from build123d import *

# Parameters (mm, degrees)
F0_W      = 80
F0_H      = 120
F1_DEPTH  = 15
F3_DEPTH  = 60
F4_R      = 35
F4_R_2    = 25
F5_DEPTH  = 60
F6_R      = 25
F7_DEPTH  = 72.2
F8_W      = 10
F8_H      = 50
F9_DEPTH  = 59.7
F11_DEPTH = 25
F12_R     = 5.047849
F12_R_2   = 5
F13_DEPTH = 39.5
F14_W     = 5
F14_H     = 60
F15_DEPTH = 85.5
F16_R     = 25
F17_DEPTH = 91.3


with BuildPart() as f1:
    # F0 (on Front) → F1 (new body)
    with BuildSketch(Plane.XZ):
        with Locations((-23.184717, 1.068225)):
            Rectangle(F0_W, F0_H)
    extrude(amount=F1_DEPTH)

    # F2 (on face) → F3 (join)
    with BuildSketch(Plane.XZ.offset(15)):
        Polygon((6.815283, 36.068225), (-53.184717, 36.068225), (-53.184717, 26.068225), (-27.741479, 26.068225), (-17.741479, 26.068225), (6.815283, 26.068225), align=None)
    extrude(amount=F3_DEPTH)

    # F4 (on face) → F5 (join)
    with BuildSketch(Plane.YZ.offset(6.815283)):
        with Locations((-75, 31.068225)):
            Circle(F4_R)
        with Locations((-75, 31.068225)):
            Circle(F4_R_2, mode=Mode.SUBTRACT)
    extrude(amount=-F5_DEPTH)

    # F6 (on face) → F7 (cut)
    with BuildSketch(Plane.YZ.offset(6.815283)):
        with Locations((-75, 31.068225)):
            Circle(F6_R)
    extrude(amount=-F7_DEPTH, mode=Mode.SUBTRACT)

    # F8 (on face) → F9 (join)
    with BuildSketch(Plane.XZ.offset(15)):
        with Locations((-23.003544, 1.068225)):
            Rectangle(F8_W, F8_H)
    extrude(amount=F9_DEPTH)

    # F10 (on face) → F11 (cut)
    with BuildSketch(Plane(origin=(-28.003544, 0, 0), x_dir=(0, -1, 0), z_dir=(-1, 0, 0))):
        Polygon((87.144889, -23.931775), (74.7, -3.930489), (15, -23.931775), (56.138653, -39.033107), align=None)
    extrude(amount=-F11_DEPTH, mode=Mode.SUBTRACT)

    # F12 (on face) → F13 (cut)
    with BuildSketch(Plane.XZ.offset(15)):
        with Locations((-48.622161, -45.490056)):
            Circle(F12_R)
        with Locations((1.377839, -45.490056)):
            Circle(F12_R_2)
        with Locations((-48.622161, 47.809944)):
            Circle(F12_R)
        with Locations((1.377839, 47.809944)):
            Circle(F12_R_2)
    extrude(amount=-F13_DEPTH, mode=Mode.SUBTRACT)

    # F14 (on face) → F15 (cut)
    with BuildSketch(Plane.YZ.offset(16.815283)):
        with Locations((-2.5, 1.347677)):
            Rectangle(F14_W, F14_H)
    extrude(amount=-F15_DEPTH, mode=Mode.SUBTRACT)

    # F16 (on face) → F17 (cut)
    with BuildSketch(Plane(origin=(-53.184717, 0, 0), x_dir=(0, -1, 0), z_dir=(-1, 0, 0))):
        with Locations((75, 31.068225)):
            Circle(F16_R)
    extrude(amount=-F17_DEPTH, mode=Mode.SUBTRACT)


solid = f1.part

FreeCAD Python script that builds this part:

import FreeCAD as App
import Part
import Sketcher


def add_polygon(sketch, points):
    """Adds a closed chain of lines whose ends are joined by coincident constraints."""
    first, n = sketch.GeometryCount, len(points)
    for a, b in zip(points, points[1:] + points[:1]):
        sketch.addGeometry(Part.LineSegment(App.Vector(*a, 0), App.Vector(*b, 0)), False)
    for i in range(n):
        sketch.addConstraint(Sketcher.Constraint("Coincident", first + i, 2, first + (i + 1) % n, 1))

doc = App.newDocument("Part")
body = doc.addObject("PartDesign::Body", "Body")

# Sketch on XZ plane
sketch1 = body.newObject("Sketcher::SketchObject", "Sketch")
sketch1.AttachmentSupport = (doc.getObject("XZ_Plane"), [""])
sketch1.MapMode = "FlatFace"
add_polygon(sketch1, [(-63, 61), (-63, -59), (17, -59), (17, 61)])  # lines 0-3
sketch1.addConstraint(Sketcher.Constraint("Vertical", 0))
sketch1.addConstraint(Sketcher.Constraint("Horizontal", 1))
sketch1.addConstraint(Sketcher.Constraint("Vertical", 2))
sketch1.addConstraint(Sketcher.Constraint("Horizontal", 3))
sketch1.addConstraint(Sketcher.Constraint("DistanceX", 1, 1, 1, 2, 80.0))
sketch1.addConstraint(Sketcher.Constraint("DistanceY", 0, 2, 0, 1, 120.0))
sketch1.addConstraint(Sketcher.Constraint("DistanceX", 0, 2, -1, 1, 63.184717))
sketch1.addConstraint(Sketcher.Constraint("DistanceY", 0, 2, -1, 1, 58.931775))
pad1 = body.newObject("PartDesign::Pad", "Pad")
pad1.Profile = sketch1
pad1.Length = 15

# Sketch on XZ plane
sketch2 = body.newObject("Sketcher::SketchObject", "Sketch001")
sketch2.AttachmentSupport = (doc.getObject("XZ_Plane"), [""])
sketch2.MapMode = "FlatFace"
sketch2.AttachmentOffset = App.Placement(App.Vector(0, 0, 15), App.Rotation())
add_polygon(sketch2, [(7, 36), (-53, 36), (-53, 26), (7, 26)])  # lines 0-3
sketch2.addConstraint(Sketcher.Constraint("Horizontal", 0))
sketch2.addConstraint(Sketcher.Constraint("Vertical", 1))
sketch2.addConstraint(Sketcher.Constraint("Horizontal", 2))
sketch2.addConstraint(Sketcher.Constraint("Vertical", 3))
sketch2.addConstraint(Sketcher.Constraint("DistanceX", 0, 2, 0, 1, 60.0))
sketch2.addConstraint(Sketcher.Constraint("DistanceY", 1, 2, 1, 1, 10.0))
sketch2.addConstraint(Sketcher.Constraint("DistanceX", 0, 2, -1, 1, 53.184717))
sketch2.addConstraint(Sketcher.Constraint("DistanceY", -1, 1, 0, 2, 36.068225))
pad2 = body.newObject("PartDesign::Pad", "Pad001")
pad2.Profile = sketch2
pad2.Length = 60

# Sketch on YZ plane
sketch3 = body.newObject("Sketcher::SketchObject", "Sketch002")
sketch3.AttachmentSupport = (doc.getObject("YZ_Plane"), [""])
sketch3.MapMode = "FlatFace"
sketch3.AttachmentOffset = App.Placement(App.Vector(0, 0, 6.815283), App.Rotation())
sketch3.addGeometry(Part.Circle(App.Vector(-75, 31, 0), App.Vector(0, 0, 1), 35), False)
sketch3.addGeometry(Part.Circle(App.Vector(-75, 31, 0), App.Vector(0, 0, 1), 25), False)
sketch3.addConstraint(Sketcher.Constraint("Coincident", 1, 3, 0, 3))
sketch3.addConstraint(Sketcher.Constraint("Diameter", 0, 70.0))
sketch3.addConstraint(Sketcher.Constraint("Diameter", 1, 50.0))
sketch3.addConstraint(Sketcher.Constraint("DistanceX", 0, 3, -1, 1, 75.0))
sketch3.addConstraint(Sketcher.Constraint("DistanceY", -1, 1, 0, 3, 31.068225))
pad3 = body.newObject("PartDesign::Pad", "Pad002")
pad3.Profile = sketch3
pad3.Length = 60
pad3.Reversed = True

# Sketch on YZ plane
sketch4 = body.newObject("Sketcher::SketchObject", "Sketch003")
sketch4.AttachmentSupport = (doc.getObject("YZ_Plane"), [""])
sketch4.MapMode = "FlatFace"
sketch4.AttachmentOffset = App.Placement(App.Vector(0, 0, 6.815283), App.Rotation())
sketch4.addGeometry(Part.Circle(App.Vector(-75, 31, 0), App.Vector(0, 0, 1), 25), False)
sketch4.addConstraint(Sketcher.Constraint("Diameter", 0, 50.0))
sketch4.addConstraint(Sketcher.Constraint("DistanceX", 0, 3, -1, 1, 75.0))
sketch4.addConstraint(Sketcher.Constraint("DistanceY", -1, 1, 0, 3, 31.068225))
pocket1 = body.newObject("PartDesign::Pocket", "Pocket")
pocket1.Profile = sketch4
pocket1.Length = 72.2

# Sketch on XZ plane
sketch5 = body.newObject("Sketcher::SketchObject", "Sketch004")
sketch5.AttachmentSupport = (doc.getObject("XZ_Plane"), [""])
sketch5.MapMode = "FlatFace"
sketch5.AttachmentOffset = App.Placement(App.Vector(0, 0, 15), App.Rotation())
add_polygon(sketch5, [(-28, 26), (-28, -24), (-18, -24), (-18, 26)])  # lines 0-3
sketch5.addConstraint(Sketcher.Constraint("Vertical", 0))
sketch5.addConstraint(Sketcher.Constraint("Horizontal", 1))
sketch5.addConstraint(Sketcher.Constraint("Vertical", 2))
sketch5.addConstraint(Sketcher.Constraint("Horizontal", 3))
sketch5.addConstraint(Sketcher.Constraint("DistanceX", 1, 1, 1, 2, 10.0))
sketch5.addConstraint(Sketcher.Constraint("DistanceY", 0, 2, 0, 1, 50.0))
sketch5.addConstraint(Sketcher.Constraint("DistanceX", 0, 2, -1, 1, 28.003544))
sketch5.addConstraint(Sketcher.Constraint("DistanceY", 0, 2, -1, 1, 23.931775))
pad4 = body.newObject("PartDesign::Pad", "Pad003")
pad4.Profile = sketch5
pad4.Length = 59.7

# Sketch on YZ plane
sketch6 = body.newObject("Sketcher::SketchObject", "Sketch005")
sketch6.AttachmentSupport = (doc.getObject("YZ_Plane"), [""])
sketch6.MapMode = "FlatFace"
sketch6.AttachmentOffset = App.Placement(App.Vector(0, 0, -28.003544), App.Rotation())
add_polygon(sketch6, [(-87, -24), (-75, -4), (-15, -24), (-56, -39)])  # lines 0-3
sketch6.addConstraint(Sketcher.Constraint("Horizontal", 1, 2, 3, 2))
sketch6.addConstraint(Sketcher.Constraint("DistanceX", 1, 2, -1, 1, 15.0))
sketch6.addConstraint(Sketcher.Constraint("DistanceX", 0, 2, -1, 1, 74.7))
sketch6.addConstraint(Sketcher.Constraint("Distance", 1, 62.961428))
sketch6.addConstraint(Sketcher.Constraint("DistanceY", 0, 2, -1, 1, 3.930489))
sketch6.addConstraint(Sketcher.Constraint("DistanceX", 3, 2, -1, 1, 87.144889))
sketch6.addConstraint(Sketcher.Constraint("Distance", 2, 43.822814))
sketch6.addConstraint(Sketcher.Constraint("Distance", 3, 34.488214))
pocket2 = body.newObject("PartDesign::Pocket", "Pocket001")
pocket2.Profile = sketch6
pocket2.Length = 25
pocket2.Reversed = True

# Sketch on XZ plane
sketch7 = body.newObject("Sketcher::SketchObject", "Sketch006")
sketch7.AttachmentSupport = (doc.getObject("XZ_Plane"), [""])
sketch7.MapMode = "FlatFace"
sketch7.AttachmentOffset = App.Placement(App.Vector(0, 0, 15), App.Rotation())
sketch7.addGeometry(Part.Circle(App.Vector(-49, -45, 0), App.Vector(0, 0, 1), 5), False)
sketch7.addGeometry(Part.Circle(App.Vector(1, -45, 0), App.Vector(0, 0, 1), 5), False)
sketch7.addGeometry(Part.Circle(App.Vector(-49, 48, 0), App.Vector(0, 0, 1), 5), False)
sketch7.addGeometry(Part.Circle(App.Vector(1, 48, 0), App.Vector(0, 0, 1), 5), False)
sketch7.addConstraint(Sketcher.Constraint("Equal", 0, 2))
sketch7.addConstraint(Sketcher.Constraint("Equal", 1, 3))
sketch7.addConstraint(Sketcher.Constraint("Horizontal", 0, 3, 1, 3))
sketch7.addConstraint(Sketcher.Constraint("Horizontal", 2, 3, 3, 3))
sketch7.addConstraint(Sketcher.Constraint("Vertical", 0, 3, 2, 3))
sketch7.addConstraint(Sketcher.Constraint("Vertical", 1, 3, 3, 3))
sketch7.addConstraint(Sketcher.Constraint("Diameter", 1, 10.0))
sketch7.addConstraint(Sketcher.Constraint("DistanceX", 0, 3, 1, 3, 50.0))
sketch7.addConstraint(Sketcher.Constraint("DistanceY", 0, 3, 2, 3, 93.3))
sketch7.addConstraint(Sketcher.Constraint("Diameter", 0, 10.095698))
sketch7.addConstraint(Sketcher.Constraint("DistanceX", 0, 3, -1, 1, 48.622161))
sketch7.addConstraint(Sketcher.Constraint("DistanceY", 0, 3, -1, 1, 45.490056))
pocket3 = body.newObject("PartDesign::Pocket", "Pocket002")
pocket3.Profile = sketch7
pocket3.Length = 39.5

# Sketch on YZ plane
sketch8 = body.newObject("Sketcher::SketchObject", "Sketch007")
sketch8.AttachmentSupport = (doc.getObject("YZ_Plane"), [""])
sketch8.MapMode = "FlatFace"
sketch8.AttachmentOffset = App.Placement(App.Vector(0, 0, 16.815283), App.Rotation())
add_polygon(sketch8, [(-5, 31), (-5, -29), (0, -29), (0, 31)])  # lines 0-3
sketch8.addConstraint(Sketcher.Constraint("Vertical", 0))
sketch8.addConstraint(Sketcher.Constraint("Horizontal", 1))
sketch8.addConstraint(Sketcher.Constraint("Vertical", 2))
sketch8.addConstraint(Sketcher.Constraint("Horizontal", 3))
sketch8.addConstraint(Sketcher.Constraint("PointOnObject", 1, 2, -2))
sketch8.addConstraint(Sketcher.Constraint("DistanceX", 1, 1, 1, 2, 5.0))
sketch8.addConstraint(Sketcher.Constraint("DistanceY", 0, 2, 0, 1, 60.0))
sketch8.addConstraint(Sketcher.Constraint("DistanceY", 0, 2, -1, 1, 28.652323))
pocket4 = body.newObject("PartDesign::Pocket", "Pocket003")
pocket4.Profile = sketch8
pocket4.Length = 85.5

# Sketch on YZ plane
sketch9 = body.newObject("Sketcher::SketchObject", "Sketch008")
sketch9.AttachmentSupport = (doc.getObject("YZ_Plane"), [""])
sketch9.MapMode = "FlatFace"
sketch9.AttachmentOffset = App.Placement(App.Vector(0, 0, -53.184717), App.Rotation())
sketch9.addGeometry(Part.Circle(App.Vector(-75, 31, 0), App.Vector(0, 0, 1), 25), False)
sketch9.addConstraint(Sketcher.Constraint("Diameter", 0, 50.0))
sketch9.addConstraint(Sketcher.Constraint("DistanceX", 0, 3, -1, 1, 75.0))
sketch9.addConstraint(Sketcher.Constraint("DistanceY", -1, 1, 0, 3, 31.068225))
pocket5 = body.newObject("PartDesign::Pocket", "Pocket004")
pocket5.Profile = sketch9
pocket5.Length = 91.3
pocket5.Reversed = True

doc.recompute()
